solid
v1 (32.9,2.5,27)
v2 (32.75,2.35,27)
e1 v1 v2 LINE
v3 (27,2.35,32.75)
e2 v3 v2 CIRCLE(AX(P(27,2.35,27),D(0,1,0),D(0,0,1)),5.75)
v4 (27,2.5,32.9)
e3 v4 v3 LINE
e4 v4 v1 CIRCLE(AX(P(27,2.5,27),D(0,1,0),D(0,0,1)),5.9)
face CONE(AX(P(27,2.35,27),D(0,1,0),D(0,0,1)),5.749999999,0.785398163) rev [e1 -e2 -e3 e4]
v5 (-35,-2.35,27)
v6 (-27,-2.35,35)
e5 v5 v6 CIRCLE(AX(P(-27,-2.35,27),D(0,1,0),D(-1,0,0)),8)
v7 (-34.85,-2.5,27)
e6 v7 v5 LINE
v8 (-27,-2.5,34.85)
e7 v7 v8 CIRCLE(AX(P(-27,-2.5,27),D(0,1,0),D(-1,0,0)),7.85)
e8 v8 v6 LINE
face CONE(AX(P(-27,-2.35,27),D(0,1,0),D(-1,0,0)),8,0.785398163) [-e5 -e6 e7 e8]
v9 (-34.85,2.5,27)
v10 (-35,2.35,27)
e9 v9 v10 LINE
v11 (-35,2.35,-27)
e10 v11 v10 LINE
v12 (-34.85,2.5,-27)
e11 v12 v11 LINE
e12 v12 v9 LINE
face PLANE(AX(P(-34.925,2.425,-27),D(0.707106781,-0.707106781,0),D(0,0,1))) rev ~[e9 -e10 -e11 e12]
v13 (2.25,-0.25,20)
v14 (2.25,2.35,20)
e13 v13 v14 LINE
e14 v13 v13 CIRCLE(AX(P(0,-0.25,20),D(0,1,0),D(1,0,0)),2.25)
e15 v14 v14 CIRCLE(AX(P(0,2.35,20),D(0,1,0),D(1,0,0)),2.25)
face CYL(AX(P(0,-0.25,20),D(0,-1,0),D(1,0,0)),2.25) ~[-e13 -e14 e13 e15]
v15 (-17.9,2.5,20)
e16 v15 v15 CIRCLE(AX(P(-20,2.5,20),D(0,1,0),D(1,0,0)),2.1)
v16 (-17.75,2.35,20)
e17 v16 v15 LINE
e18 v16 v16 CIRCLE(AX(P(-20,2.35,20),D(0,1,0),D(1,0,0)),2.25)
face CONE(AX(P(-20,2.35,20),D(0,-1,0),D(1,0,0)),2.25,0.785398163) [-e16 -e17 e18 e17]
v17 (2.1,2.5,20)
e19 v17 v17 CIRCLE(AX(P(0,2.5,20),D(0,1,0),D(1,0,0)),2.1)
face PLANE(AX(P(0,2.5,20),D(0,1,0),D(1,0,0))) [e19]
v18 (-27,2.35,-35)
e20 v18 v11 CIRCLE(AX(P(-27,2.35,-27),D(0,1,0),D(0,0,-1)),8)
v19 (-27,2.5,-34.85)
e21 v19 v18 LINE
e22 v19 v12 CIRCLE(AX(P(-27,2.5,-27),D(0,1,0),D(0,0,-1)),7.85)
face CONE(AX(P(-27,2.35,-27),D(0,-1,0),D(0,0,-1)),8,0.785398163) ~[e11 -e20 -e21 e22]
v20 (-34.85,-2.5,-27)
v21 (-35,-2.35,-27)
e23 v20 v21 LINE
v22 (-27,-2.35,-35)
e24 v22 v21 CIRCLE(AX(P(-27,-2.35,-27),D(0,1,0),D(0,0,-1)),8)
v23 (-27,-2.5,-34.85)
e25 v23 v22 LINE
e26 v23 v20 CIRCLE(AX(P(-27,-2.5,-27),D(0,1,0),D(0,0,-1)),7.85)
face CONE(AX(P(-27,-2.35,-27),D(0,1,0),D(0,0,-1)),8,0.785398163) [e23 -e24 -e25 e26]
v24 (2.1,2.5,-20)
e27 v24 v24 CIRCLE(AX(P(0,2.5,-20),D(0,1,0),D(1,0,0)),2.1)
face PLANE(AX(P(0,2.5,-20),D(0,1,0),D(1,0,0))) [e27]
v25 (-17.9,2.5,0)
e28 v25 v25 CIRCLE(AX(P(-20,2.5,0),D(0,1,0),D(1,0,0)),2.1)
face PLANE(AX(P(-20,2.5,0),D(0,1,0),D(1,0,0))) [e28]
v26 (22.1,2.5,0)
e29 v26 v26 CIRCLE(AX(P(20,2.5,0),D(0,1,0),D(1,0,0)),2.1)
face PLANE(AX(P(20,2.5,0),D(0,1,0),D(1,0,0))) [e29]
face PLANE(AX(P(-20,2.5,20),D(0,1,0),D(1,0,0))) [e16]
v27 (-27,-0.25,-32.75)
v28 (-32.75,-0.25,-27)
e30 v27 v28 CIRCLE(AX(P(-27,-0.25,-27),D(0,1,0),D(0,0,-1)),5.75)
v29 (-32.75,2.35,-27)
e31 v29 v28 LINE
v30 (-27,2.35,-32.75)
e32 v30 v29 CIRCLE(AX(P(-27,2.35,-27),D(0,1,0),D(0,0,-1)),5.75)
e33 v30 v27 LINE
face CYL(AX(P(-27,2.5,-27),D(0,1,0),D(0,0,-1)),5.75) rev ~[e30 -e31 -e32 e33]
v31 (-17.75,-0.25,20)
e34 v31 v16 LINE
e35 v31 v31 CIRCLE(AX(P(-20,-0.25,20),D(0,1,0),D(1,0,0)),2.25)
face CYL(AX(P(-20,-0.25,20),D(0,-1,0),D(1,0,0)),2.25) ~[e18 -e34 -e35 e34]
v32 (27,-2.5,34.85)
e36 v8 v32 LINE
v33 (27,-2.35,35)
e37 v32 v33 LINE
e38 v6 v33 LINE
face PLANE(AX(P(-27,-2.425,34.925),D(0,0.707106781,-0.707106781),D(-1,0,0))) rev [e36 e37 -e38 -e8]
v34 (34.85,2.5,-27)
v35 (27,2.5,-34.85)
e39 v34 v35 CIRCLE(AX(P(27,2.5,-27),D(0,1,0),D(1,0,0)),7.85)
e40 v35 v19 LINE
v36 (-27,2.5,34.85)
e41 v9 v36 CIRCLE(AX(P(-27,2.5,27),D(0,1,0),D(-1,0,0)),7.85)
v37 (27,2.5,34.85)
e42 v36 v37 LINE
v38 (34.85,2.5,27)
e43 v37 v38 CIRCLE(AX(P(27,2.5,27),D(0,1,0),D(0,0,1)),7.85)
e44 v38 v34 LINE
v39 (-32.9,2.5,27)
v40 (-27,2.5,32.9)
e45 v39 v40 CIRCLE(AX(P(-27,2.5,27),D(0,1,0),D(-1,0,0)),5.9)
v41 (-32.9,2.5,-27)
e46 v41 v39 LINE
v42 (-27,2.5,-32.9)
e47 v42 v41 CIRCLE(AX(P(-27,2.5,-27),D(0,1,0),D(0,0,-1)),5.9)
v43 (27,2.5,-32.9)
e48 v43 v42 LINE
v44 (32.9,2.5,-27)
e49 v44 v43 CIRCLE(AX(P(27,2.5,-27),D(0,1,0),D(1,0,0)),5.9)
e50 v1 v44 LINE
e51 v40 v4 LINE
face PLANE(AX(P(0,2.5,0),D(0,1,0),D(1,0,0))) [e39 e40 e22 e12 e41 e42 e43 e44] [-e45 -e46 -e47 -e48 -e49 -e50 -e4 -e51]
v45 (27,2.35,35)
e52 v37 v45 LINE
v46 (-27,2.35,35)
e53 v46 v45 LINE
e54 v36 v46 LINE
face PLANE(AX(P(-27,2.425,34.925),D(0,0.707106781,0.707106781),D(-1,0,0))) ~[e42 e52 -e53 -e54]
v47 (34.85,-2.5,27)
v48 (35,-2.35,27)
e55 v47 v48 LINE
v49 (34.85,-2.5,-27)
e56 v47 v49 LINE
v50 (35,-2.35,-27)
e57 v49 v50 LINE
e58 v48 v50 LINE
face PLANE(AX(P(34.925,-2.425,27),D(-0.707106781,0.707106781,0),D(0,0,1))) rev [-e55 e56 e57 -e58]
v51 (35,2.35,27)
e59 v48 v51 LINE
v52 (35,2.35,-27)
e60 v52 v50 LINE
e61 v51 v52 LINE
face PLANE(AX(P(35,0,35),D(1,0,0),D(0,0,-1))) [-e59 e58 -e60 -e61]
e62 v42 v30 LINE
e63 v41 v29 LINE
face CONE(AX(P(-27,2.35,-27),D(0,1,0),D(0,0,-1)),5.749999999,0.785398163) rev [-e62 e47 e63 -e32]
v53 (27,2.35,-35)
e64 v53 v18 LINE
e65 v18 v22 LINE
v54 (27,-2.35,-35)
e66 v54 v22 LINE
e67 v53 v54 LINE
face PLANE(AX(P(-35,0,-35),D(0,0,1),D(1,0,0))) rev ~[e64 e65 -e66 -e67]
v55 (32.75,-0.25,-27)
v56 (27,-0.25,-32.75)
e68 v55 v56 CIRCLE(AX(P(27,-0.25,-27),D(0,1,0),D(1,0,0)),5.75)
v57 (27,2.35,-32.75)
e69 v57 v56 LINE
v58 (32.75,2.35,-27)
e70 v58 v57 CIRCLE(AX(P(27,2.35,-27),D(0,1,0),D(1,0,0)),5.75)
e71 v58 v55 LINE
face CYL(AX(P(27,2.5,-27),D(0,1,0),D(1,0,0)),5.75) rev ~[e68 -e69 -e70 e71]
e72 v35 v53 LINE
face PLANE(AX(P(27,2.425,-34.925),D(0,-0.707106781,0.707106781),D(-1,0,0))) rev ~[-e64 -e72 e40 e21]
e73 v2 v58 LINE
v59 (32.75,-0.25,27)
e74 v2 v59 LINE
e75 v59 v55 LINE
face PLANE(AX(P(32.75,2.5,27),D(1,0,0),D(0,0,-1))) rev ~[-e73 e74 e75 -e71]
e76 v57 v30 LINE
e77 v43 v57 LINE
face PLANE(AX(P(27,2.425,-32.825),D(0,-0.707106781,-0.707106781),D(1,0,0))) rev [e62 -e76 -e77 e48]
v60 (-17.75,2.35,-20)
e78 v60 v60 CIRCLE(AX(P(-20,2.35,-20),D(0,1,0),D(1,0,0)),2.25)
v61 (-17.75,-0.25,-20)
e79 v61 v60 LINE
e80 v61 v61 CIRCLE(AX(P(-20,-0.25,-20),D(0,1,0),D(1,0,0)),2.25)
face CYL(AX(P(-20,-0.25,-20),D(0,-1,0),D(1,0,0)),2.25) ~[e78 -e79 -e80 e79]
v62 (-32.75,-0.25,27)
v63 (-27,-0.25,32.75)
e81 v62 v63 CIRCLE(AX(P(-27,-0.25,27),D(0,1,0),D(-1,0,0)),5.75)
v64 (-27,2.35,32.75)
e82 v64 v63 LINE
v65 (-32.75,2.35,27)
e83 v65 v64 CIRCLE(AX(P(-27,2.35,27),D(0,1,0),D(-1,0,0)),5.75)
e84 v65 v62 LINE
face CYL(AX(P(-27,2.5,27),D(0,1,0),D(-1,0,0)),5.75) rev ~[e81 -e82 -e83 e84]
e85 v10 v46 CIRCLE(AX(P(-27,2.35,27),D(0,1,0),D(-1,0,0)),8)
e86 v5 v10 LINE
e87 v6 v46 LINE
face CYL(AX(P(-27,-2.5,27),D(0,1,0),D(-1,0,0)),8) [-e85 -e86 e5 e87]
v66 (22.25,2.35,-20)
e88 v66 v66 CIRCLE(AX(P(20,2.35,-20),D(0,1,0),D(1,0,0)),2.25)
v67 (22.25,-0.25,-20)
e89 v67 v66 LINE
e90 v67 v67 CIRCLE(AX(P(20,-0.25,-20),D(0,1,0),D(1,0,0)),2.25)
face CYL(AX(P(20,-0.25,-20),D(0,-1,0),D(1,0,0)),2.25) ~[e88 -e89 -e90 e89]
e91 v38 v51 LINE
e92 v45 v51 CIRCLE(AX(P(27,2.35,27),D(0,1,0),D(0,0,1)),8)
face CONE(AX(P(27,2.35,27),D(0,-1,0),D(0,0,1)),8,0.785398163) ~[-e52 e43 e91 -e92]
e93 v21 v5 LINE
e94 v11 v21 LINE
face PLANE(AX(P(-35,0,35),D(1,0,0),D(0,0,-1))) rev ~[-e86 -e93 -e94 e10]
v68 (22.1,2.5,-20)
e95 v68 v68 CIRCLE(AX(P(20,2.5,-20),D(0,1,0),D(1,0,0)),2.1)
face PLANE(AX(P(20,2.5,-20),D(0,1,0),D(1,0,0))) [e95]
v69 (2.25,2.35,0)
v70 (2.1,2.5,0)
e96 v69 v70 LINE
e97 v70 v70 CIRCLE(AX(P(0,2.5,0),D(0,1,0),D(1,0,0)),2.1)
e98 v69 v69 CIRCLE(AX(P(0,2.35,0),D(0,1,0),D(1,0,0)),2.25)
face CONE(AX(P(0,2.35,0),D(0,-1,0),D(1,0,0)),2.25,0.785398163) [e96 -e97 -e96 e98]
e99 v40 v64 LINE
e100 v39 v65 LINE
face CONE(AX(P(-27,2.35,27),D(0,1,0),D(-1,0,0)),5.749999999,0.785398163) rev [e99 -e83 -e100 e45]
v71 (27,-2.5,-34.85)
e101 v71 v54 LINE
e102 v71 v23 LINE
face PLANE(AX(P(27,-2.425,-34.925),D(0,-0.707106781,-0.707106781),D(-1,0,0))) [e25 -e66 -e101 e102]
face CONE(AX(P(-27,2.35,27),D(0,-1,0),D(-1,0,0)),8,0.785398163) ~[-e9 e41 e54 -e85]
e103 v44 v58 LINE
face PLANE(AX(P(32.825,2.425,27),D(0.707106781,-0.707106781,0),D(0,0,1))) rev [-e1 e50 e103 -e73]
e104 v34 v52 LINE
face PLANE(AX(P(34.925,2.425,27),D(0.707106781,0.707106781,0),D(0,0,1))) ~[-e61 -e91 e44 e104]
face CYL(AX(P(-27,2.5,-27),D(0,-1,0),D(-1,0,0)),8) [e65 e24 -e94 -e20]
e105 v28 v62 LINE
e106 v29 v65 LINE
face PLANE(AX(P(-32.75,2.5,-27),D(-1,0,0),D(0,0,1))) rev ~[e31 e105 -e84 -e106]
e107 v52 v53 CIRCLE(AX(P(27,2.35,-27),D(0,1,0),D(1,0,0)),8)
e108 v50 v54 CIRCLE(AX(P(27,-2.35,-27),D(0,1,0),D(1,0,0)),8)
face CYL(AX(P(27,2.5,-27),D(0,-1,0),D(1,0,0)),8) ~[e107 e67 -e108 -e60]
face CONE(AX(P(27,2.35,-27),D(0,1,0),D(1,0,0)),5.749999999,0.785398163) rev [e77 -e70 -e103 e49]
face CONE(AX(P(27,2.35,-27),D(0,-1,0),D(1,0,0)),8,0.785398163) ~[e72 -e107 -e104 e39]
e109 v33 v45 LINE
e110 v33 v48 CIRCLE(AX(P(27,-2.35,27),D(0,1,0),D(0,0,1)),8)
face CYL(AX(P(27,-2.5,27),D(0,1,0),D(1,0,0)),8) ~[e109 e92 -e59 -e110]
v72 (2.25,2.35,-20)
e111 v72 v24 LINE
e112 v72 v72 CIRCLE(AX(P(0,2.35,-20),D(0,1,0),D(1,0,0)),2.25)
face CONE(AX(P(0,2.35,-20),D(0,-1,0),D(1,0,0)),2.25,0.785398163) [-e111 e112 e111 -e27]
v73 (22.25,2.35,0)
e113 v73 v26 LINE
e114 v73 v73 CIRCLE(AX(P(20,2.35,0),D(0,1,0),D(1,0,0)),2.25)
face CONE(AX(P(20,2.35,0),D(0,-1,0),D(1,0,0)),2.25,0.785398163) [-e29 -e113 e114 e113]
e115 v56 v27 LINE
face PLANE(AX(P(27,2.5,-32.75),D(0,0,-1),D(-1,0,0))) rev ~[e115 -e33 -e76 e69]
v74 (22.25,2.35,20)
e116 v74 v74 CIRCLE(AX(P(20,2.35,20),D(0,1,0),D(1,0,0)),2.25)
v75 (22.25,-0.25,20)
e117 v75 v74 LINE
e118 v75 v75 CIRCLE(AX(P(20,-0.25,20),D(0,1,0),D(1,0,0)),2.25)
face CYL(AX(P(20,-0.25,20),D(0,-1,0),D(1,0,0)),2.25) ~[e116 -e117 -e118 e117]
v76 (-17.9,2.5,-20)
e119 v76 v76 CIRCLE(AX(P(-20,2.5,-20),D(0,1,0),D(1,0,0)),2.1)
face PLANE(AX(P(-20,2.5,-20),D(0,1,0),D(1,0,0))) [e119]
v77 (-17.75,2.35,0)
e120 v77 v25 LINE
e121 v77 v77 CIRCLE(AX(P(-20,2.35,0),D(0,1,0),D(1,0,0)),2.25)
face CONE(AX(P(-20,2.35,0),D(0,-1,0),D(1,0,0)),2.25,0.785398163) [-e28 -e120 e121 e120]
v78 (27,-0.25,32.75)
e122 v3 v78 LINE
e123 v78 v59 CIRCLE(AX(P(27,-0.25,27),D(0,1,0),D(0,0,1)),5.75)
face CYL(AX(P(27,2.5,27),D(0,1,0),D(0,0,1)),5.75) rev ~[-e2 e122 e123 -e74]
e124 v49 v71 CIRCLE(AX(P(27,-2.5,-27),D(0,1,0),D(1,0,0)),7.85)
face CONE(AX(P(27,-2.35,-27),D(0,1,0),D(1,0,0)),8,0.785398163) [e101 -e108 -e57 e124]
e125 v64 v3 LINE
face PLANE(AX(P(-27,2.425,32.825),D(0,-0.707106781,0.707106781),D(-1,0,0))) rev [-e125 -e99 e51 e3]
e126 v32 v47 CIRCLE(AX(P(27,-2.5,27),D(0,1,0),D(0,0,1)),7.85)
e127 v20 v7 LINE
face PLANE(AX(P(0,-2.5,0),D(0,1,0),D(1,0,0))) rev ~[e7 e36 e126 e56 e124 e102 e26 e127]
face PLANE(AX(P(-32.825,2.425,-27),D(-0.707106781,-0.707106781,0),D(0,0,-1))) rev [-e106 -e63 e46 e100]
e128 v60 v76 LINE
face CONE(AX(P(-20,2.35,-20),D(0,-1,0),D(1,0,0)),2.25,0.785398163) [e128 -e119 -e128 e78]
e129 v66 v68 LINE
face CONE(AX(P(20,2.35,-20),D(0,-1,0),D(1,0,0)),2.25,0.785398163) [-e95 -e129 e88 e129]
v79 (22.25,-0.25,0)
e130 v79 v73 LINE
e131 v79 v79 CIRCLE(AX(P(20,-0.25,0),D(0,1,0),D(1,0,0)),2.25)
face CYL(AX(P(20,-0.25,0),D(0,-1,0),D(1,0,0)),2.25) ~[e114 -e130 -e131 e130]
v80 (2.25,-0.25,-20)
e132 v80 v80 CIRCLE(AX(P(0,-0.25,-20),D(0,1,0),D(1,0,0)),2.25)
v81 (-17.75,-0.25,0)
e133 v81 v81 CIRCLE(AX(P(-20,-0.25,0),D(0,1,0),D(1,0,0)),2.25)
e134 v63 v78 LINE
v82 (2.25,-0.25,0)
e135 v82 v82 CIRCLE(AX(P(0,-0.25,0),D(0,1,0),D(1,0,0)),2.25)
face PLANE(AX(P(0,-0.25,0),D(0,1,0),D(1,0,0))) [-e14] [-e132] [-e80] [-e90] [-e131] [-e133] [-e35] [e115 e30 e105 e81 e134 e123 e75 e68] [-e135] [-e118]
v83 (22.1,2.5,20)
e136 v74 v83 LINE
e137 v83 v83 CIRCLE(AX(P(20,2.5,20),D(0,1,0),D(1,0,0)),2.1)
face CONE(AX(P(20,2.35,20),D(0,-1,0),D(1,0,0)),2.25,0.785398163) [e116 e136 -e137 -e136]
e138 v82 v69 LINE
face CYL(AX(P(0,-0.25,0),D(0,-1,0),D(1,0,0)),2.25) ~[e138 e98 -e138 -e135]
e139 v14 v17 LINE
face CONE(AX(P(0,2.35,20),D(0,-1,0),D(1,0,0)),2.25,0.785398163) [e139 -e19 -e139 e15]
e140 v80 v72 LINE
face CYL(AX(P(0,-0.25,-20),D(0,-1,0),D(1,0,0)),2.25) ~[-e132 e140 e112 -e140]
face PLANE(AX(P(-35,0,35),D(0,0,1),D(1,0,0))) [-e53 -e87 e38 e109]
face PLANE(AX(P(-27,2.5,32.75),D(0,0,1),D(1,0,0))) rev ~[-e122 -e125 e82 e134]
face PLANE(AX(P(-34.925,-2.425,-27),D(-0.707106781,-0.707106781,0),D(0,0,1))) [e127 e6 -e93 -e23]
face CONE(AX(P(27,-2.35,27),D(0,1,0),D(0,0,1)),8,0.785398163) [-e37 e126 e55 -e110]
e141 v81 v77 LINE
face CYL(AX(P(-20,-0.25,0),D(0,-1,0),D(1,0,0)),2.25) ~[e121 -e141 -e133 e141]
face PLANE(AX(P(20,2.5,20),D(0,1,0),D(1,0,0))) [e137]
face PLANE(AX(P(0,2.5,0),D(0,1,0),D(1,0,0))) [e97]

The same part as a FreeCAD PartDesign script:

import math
import FreeCAD as App
import Part
import Sketcher
from FreeCAD import Vector
Q = App.Units.Quantity


def edges_at(feature, points):
    """Names of the edges that pass closest to the given points."""
    edges = feature.Shape.Edges
    near = lambda p: min(range(len(edges)), key=lambda i: edges[i].distToShape(Part.Vertex(*p))[0])
    return sorted({f"Edge{near(p) + 1}" for p in points})


def add_polygon(sketch, points):
    """Adds a closed chain of lines whose ends are joined by coincident constraints."""
    first, n = sketch.GeometryCount, len(points)
    for a, b in zip(points, points[1:] + points[:1]):
        sketch.addGeometry(Part.LineSegment(App.Vector(*a, 0), App.Vector(*b, 0)), False)
    for i in range(n):
        sketch.addConstraint(Sketcher.Constraint("Coincident", first + i, 2, first + (i + 1) % n, 1))

doc = App.newDocument("Part")
body = doc.addObject("PartDesign::Body", "Body")

# Sketch on XZ plane
sketch1 = doc.addObject("Sketcher::SketchObject", "Sketch")
body.addObject(sketch1)
sketch1.AttachmentSupport = (doc.XZ_Plane, [""])
sketch1.MapMode = "FlatFace"
add_polygon(sketch1, [(-35, -35), (-35, 35), (35, 35), (35, -35)])  # lines 0-3
sketch1.addConstraint(Sketcher.Constraint("Vertical", 0))
sketch1.addConstraint(Sketcher.Constraint("Horizontal", 1))
sketch1.addConstraint(Sketcher.Constraint("Vertical", 2))
sketch1.addConstraint(Sketcher.Constraint("Horizontal", 3))
sketch1.addConstraint(Sketcher.Constraint("Symmetric", 0, 2, 2, 2, -1, 1))
sketch1.addConstraint(Sketcher.Constraint("Equal", 3, 0))
sketch1.addConstraint(Sketcher.Constraint("DistanceX", 1, 1, 1, 2, Q("70 mm")))
pad1 = doc.addObject("PartDesign::Pad", "Pad")
body.addObject(pad1)
pad1.Profile = sketch1
pad1.Length = 5
pad1.Midplane = True
doc.recompute()

fillet = doc.addObject("PartDesign::Fillet", "Fillet")
body.addObject(fillet)
fillet.Base = (pad1, edges_at(pad1, [
    (35, 0, 35),
    (-35, 0, 35),
    (-35, 0, -35),
    (35, 0, -35),
]))
fillet.Radius = 8

# Sketch on XZ plane
sketch2 = doc.addObject("Sketcher::SketchObject", "Sketch001")
body.addObject(sketch2)
sketch2.AttachmentSupport = (doc.XZ_Plane, [""])
sketch2.MapMode = "FlatFace"
sketch2.AttachmentOffset = App.Placement(Vector(0, 0, -2.5), App.Rotation())
sketch2.addGeometry(Part.LineSegment(Vector(32.75, 27, 0), Vector(32.75, -27, 0)), False)
sketch2.addGeometry(Part.ArcOfCircle(Part.Circle(Vector(27, -27, 0), Vector(0, 0, 1), 5.75), math.radians(-90), math.radians(0)), False)
sketch2.addGeometry(Part.LineSegment(Vector(27, -32.75, 0), Vector(-27, -32.75, 0)), False)
sketch2.addGeometry(Part.ArcOfCircle(Part.Circle(Vector(-27, -27, 0), Vector(0, 0, 1), 5.75), math.radians(180), math.radians(270)), False)
sketch2.addGeometry(Part.LineSegment(Vector(-32.75, -27, 0), Vector(-32.75, 27, 0)), False)
sketch2.addGeometry(Part.ArcOfCircle(Part.Circle(Vector(-27, 27, 0), Vector(0, 0, 1), 5.75), math.radians(90), math.radians(180)), False)
sketch2.addGeometry(Part.LineSegment(Vector(-27, 32.75, 0), Vector(27, 32.75, 0)), False)
sketch2.addGeometry(Part.ArcOfCircle(Part.Circle(Vector(27, 27, 0), Vector(0, 0, 1), 5.75), math.radians(0), math.radians(90)), False)
sketch2.addConstraint(Sketcher.Constraint("Tangent", 0, 2, 1, 2))
sketch2.addConstraint(Sketcher.Constraint("Tangent", 1, 1, 2, 1))
sketch2.addConstraint(Sketcher.Constraint("Tangent", 2, 2, 3, 2))
sketch2.addConstraint(Sketcher.Constraint("Tangent", 3, 1, 4, 1))
sketch2.addConstraint(Sketcher.Constraint("Tangent", 4, 2, 5, 2))
sketch2.addConstraint(Sketcher.Constraint("Tangent", 5, 1, 6, 1))
sketch2.addConstraint(Sketcher.Constraint("Tangent", 6, 2, 7, 2))
sketch2.addConstraint(Sketcher.Constraint("Tangent", 7, 1, 0, 1))
sketch2.addConstraint(Sketcher.Constraint("Vertical", 0))
sketch2.addConstraint(Sketcher.Constraint("Horizontal", 2))
sketch2.addConstraint(Sketcher.Constraint("Vertical", 4))
sketch2.addConstraint(Sketcher.Constraint("Horizontal", 6))
sketch2.addConstraint(Sketcher.Constraint("Equal", 1, 3))
sketch2.addConstraint(Sketcher.Constraint("Equal", 3, 5))
sketch2.addConstraint(Sketcher.Constraint("Equal", 5, 7))
sketch2.addConstraint(Sketcher.Constraint("Symmetric", 1, 3, 5, 3, -1, 1))
sketch2.addConstraint(Sketcher.Constraint("Equal", 6, 0))
sketch2.addConstraint(Sketcher.Constraint("DistanceX", 2, 2, 2, 1, Q("54 mm")))
sketch2.addConstraint(Sketcher.Constraint("Radius", 1, Q("5.75 mm")))
pocket1 = doc.addObject("PartDesign::Pocket", "Pocket")
body.addObject(pocket1)
pocket1.Profile = sketch2
pocket1.Length = 2.75
pocket1.Reversed = True

# Sketch on XZ plane
sketch3 = doc.addObject("Sketcher::SketchObject", "Sketch002")
body.addObject(sketch3)
sketch3.AttachmentSupport = (doc.XZ_Plane, [""])
sketch3.MapMode = "FlatFace"
sketch3.AttachmentOffset = App.Placement(Vector(0, 0, 0.25), App.Rotation())
sketch3.addGeometry(Part.Circle(Vector(-20, -20, 0), Vector(0, 0, 1), 2.25), False)
sketch3.addGeometry(Part.Circle(Vector(0, -20, 0), Vector(0, 0, 1), 2.25), False)
sketch3.addGeometry(Part.Circle(Vector(20, -20, 0), Vector(0, 0, 1), 2.25), False)
sketch3.addGeometry(Part.Circle(Vector(0, 0, 0), Vector(0, 0, 1), 2.25), False)
sketch3.addGeometry(Part.Circle(Vector(20, 0, 0), Vector(0, 0, 1), 2.25), False)
sketch3.addGeometry(Part.Circle(Vector(0, 20, 0), Vector(0, 0, 1), 2.25), False)
sketch3.addGeometry(Part.Circle(Vector(20, 20, 0), Vector(0, 0, 1), 2.25), False)
sketch3.addGeometry(Part.Circle(Vector(-20, 0, 0), Vector(0, 0, 1), 2.25), False)
sketch3.addGeometry(Part.Circle(Vector(-20, 20, 0), Vector(0, 0, 1), 2.25), False)
sketch3.addConstraint(Sketcher.Constraint("Coincident", 3, 3, -1, 1))
sketch3.addConstraint(Sketcher.Constraint("Equal", 0, 1))
sketch3.addConstraint(Sketcher.Constraint("Equal", 1, 2))
sketch3.addConstraint(Sketcher.Constraint("Equal", 2, 3))
sketch3.addConstraint(Sketcher.Constraint("Equal", 3, 4))
sketch3.addConstraint(Sketcher.Constraint("Equal", 4, 5))
sketch3.addConstraint(Sketcher.Constraint("Equal", 5, 6))
sketch3.addConstraint(Sketcher.Constraint("Equal", 6, 7))
sketch3.addConstraint(Sketcher.Constraint("Equal", 7, 8))
sketch3.addConstraint(Sketcher.Constraint("Symmetric", 1, 3, 5, 3, -1, 1))
sketch3.addConstraint(Sketcher.Constraint("Symmetric", 0, 3, 6, 3, -1, 1))
sketch3.addConstraint(Sketcher.Constraint("Symmetric", 4, 3, 7, 3, -1, 1))
sketch3.addConstraint(Sketcher.Constraint("Symmetric", 2, 3, 8, 3, -1, 1))
sketch3.addConstraint(Sketcher.Constraint("Symmetric", 0, 3, 2, 3, -2))
sketch3.addConstraint(Sketcher.Constraint("PointOnObject", 1, 3, -2))
sketch3.addConstraint(Sketcher.Constraint("PointOnObject", 4, 3, -1))
sketch3.addConstraint(Sketcher.Constraint("Horizontal", 0, 3, 1, 3))
sketch3.addConstraint(Sketcher.Constraint("Vertical", 2, 3, 4, 3))
sketch3.addConstraint(Sketcher.Constraint("Diameter", 0, Q("4.5 mm")))
sketch3.addConstraint(Sketcher.Constraint("DistanceX", 0, 3, -1, 1, Q("20 mm")))
sketch3.addConstraint(Sketcher.Constraint("DistanceY", 0, 3, -1, 1, Q("20 mm")))
pad2 = doc.addObject("PartDesign::Pad", "Pad001")
body.addObject(pad2)
pad2.Profile = sketch3
pad2.Length = 2.75
pad2.Reversed = True
doc.recompute()

chamfer = doc.addObject("PartDesign::Chamfer", "Chamfer")
body.addObject(chamfer)
chamfer.Base = (pad2, edges_at(pad2, [
    (35, 2.5, 0),
    (35, -2.5, 0),
    (0, 2.5, -35),
    (-35, 2.5, 0),
    (0, 2.5, 35),
    (-32.657, 2.5, 32.657),
    (-32.657, 2.5, -32.657),
    (32.657, 2.5, 32.657),
    (32.657, 2.5, -32.657),
    (0, -2.5, -35),
    (0, -2.5, 35),
    (-35, -2.5, 0),
    (-32.657, -2.5, 32.657),
    (-32.657, -2.5, -32.657),
    (32.657, -2.5, 32.657),
    (32.657, -2.5, -32.657),
    (31.066, 2.5, -31.066),
    (0, 2.5, -32.75),
    (-31.066, 2.5, -31.066),
    (-32.75, 2.5, 0),
    (-31.066, 2.5, 31.066),
    (0, 2.5, 32.75),
    (31.066, 2.5, 31.066),
    (32.75, 2.5, 0),
    (-22.25, 2.5, -20),
    (-2.25, 2.5, -20),
    (17.75, 2.5, -20),
    (-2.25, 2.5, 0),
    (17.75, 2.5, 0),
    (-2.25, 2.5, 20),
    (17.75, 2.5, 20),
    (-22.25, 2.5, 0),
    (-22.25, 2.5, 20),
]))
chamfer.Size = 0.15

doc.recompute()
